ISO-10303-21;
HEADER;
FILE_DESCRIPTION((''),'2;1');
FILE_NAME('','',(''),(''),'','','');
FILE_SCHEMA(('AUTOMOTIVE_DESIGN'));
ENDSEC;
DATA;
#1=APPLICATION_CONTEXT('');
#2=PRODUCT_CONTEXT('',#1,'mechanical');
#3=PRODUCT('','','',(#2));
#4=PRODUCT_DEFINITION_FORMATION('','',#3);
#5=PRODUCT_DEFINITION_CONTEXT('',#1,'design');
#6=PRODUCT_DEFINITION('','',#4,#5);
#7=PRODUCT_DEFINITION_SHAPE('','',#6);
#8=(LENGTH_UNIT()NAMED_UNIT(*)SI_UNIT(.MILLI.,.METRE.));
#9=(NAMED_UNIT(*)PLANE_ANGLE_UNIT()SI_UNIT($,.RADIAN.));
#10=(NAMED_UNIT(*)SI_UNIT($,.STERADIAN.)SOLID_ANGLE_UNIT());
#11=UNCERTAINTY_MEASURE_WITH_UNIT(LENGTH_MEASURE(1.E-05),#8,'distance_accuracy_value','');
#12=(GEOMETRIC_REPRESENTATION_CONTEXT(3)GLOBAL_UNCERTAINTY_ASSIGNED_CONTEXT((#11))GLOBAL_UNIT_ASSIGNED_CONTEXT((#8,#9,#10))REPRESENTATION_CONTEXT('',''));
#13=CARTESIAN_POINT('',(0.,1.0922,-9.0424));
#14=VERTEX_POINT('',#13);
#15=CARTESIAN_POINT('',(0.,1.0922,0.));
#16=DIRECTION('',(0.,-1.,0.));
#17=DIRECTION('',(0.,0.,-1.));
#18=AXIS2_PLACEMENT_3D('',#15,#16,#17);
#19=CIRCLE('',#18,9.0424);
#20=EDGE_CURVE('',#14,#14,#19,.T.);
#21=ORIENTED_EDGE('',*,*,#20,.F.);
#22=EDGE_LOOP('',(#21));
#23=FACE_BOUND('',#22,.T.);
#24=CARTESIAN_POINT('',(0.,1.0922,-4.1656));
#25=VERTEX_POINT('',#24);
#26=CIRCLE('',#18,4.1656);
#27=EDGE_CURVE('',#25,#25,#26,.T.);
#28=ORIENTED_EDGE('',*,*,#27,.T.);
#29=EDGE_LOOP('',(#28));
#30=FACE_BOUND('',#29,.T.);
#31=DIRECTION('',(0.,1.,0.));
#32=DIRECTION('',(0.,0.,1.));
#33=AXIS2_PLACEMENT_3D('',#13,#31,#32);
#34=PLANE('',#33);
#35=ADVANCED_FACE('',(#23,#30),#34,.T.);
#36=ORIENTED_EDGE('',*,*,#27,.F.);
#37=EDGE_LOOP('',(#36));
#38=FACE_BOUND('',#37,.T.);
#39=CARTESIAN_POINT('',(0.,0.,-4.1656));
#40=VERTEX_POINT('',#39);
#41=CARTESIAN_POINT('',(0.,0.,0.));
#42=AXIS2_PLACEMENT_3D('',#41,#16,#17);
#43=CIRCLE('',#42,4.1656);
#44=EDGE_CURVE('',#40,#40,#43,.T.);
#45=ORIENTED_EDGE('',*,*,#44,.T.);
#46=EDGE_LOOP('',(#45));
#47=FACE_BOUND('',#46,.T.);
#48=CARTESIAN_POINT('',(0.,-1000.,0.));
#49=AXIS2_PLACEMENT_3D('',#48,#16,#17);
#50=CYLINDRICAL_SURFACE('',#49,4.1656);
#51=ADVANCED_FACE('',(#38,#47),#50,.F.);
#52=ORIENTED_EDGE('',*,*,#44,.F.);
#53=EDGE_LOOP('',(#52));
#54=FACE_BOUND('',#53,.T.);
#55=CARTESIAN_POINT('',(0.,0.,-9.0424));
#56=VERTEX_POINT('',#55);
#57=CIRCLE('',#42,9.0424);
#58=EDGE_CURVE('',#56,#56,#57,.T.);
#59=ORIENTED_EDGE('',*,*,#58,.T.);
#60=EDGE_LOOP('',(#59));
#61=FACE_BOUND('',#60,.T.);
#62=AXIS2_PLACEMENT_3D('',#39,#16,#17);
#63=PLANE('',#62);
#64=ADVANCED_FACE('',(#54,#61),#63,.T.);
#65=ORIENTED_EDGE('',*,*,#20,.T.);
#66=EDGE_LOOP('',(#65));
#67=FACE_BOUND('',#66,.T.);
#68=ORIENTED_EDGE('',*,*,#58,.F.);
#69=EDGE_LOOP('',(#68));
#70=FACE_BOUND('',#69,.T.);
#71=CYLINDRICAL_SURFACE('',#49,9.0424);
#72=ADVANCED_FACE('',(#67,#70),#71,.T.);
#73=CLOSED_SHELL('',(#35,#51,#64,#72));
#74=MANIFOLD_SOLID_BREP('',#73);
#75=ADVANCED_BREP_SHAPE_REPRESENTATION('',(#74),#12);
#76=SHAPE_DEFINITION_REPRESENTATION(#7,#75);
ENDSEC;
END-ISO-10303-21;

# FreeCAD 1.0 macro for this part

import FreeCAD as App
import Part
import Sketcher
Q = App.Units.Quantity


def add_polygon(sketch, points):
    """Adds a closed chain of lines whose ends are joined by coincident constraints."""
    first, n = sketch.GeometryCount, len(points)
    for a, b in zip(points, points[1:] + points[:1]):
        sketch.addGeometry(Part.LineSegment(App.Vector(*a, 0), App.Vector(*b, 0)), False)
    for i in range(n):
        sketch.addConstraint(Sketcher.Constraint("Coincident", first + i, 2, first + (i + 1) % n, 1))

doc = App.newDocument("Part")
body = doc.addObject("PartDesign::Body", "Body")

sketch1 = body.newObject("Sketcher::SketchObject", "Sketch")
sketch1.AttachmentSupport = (doc.getObject("YZ_Plane"), [""])
sketch1.MapMode = "FlatFace"
add_polygon(sketch1, [(1.1, -4.2), (0, -4.2), (0, -9), (1.1, -9)])
sketch1.addConstraint([
    Sketcher.Constraint("Horizontal", 0),
    Sketcher.Constraint("Vertical", 1),
    Sketcher.Constraint("Horizontal", 2),
    Sketcher.Constraint("Vertical", 3),
    Sketcher.Constraint("PointOnObject", 0, 2, -2),
    Sketcher.Constraint("DistanceX", 0, 2, 0, 1, Q("0.043 in")),
    Sketcher.Constraint("DistanceY", 1, 2, 1, 1, Q("0.192 in")),
    Sketcher.Constraint("DistanceY", 0, 2, -1, 1, Q("0.164 in")),
])
revolution = body.newObject("PartDesign::Revolution", "Revolution")
revolution.Profile = sketch1
revolution.ReferenceAxis = (sketch1, ["H_Axis"])
revolution.Angle = 360

doc.recompute()
